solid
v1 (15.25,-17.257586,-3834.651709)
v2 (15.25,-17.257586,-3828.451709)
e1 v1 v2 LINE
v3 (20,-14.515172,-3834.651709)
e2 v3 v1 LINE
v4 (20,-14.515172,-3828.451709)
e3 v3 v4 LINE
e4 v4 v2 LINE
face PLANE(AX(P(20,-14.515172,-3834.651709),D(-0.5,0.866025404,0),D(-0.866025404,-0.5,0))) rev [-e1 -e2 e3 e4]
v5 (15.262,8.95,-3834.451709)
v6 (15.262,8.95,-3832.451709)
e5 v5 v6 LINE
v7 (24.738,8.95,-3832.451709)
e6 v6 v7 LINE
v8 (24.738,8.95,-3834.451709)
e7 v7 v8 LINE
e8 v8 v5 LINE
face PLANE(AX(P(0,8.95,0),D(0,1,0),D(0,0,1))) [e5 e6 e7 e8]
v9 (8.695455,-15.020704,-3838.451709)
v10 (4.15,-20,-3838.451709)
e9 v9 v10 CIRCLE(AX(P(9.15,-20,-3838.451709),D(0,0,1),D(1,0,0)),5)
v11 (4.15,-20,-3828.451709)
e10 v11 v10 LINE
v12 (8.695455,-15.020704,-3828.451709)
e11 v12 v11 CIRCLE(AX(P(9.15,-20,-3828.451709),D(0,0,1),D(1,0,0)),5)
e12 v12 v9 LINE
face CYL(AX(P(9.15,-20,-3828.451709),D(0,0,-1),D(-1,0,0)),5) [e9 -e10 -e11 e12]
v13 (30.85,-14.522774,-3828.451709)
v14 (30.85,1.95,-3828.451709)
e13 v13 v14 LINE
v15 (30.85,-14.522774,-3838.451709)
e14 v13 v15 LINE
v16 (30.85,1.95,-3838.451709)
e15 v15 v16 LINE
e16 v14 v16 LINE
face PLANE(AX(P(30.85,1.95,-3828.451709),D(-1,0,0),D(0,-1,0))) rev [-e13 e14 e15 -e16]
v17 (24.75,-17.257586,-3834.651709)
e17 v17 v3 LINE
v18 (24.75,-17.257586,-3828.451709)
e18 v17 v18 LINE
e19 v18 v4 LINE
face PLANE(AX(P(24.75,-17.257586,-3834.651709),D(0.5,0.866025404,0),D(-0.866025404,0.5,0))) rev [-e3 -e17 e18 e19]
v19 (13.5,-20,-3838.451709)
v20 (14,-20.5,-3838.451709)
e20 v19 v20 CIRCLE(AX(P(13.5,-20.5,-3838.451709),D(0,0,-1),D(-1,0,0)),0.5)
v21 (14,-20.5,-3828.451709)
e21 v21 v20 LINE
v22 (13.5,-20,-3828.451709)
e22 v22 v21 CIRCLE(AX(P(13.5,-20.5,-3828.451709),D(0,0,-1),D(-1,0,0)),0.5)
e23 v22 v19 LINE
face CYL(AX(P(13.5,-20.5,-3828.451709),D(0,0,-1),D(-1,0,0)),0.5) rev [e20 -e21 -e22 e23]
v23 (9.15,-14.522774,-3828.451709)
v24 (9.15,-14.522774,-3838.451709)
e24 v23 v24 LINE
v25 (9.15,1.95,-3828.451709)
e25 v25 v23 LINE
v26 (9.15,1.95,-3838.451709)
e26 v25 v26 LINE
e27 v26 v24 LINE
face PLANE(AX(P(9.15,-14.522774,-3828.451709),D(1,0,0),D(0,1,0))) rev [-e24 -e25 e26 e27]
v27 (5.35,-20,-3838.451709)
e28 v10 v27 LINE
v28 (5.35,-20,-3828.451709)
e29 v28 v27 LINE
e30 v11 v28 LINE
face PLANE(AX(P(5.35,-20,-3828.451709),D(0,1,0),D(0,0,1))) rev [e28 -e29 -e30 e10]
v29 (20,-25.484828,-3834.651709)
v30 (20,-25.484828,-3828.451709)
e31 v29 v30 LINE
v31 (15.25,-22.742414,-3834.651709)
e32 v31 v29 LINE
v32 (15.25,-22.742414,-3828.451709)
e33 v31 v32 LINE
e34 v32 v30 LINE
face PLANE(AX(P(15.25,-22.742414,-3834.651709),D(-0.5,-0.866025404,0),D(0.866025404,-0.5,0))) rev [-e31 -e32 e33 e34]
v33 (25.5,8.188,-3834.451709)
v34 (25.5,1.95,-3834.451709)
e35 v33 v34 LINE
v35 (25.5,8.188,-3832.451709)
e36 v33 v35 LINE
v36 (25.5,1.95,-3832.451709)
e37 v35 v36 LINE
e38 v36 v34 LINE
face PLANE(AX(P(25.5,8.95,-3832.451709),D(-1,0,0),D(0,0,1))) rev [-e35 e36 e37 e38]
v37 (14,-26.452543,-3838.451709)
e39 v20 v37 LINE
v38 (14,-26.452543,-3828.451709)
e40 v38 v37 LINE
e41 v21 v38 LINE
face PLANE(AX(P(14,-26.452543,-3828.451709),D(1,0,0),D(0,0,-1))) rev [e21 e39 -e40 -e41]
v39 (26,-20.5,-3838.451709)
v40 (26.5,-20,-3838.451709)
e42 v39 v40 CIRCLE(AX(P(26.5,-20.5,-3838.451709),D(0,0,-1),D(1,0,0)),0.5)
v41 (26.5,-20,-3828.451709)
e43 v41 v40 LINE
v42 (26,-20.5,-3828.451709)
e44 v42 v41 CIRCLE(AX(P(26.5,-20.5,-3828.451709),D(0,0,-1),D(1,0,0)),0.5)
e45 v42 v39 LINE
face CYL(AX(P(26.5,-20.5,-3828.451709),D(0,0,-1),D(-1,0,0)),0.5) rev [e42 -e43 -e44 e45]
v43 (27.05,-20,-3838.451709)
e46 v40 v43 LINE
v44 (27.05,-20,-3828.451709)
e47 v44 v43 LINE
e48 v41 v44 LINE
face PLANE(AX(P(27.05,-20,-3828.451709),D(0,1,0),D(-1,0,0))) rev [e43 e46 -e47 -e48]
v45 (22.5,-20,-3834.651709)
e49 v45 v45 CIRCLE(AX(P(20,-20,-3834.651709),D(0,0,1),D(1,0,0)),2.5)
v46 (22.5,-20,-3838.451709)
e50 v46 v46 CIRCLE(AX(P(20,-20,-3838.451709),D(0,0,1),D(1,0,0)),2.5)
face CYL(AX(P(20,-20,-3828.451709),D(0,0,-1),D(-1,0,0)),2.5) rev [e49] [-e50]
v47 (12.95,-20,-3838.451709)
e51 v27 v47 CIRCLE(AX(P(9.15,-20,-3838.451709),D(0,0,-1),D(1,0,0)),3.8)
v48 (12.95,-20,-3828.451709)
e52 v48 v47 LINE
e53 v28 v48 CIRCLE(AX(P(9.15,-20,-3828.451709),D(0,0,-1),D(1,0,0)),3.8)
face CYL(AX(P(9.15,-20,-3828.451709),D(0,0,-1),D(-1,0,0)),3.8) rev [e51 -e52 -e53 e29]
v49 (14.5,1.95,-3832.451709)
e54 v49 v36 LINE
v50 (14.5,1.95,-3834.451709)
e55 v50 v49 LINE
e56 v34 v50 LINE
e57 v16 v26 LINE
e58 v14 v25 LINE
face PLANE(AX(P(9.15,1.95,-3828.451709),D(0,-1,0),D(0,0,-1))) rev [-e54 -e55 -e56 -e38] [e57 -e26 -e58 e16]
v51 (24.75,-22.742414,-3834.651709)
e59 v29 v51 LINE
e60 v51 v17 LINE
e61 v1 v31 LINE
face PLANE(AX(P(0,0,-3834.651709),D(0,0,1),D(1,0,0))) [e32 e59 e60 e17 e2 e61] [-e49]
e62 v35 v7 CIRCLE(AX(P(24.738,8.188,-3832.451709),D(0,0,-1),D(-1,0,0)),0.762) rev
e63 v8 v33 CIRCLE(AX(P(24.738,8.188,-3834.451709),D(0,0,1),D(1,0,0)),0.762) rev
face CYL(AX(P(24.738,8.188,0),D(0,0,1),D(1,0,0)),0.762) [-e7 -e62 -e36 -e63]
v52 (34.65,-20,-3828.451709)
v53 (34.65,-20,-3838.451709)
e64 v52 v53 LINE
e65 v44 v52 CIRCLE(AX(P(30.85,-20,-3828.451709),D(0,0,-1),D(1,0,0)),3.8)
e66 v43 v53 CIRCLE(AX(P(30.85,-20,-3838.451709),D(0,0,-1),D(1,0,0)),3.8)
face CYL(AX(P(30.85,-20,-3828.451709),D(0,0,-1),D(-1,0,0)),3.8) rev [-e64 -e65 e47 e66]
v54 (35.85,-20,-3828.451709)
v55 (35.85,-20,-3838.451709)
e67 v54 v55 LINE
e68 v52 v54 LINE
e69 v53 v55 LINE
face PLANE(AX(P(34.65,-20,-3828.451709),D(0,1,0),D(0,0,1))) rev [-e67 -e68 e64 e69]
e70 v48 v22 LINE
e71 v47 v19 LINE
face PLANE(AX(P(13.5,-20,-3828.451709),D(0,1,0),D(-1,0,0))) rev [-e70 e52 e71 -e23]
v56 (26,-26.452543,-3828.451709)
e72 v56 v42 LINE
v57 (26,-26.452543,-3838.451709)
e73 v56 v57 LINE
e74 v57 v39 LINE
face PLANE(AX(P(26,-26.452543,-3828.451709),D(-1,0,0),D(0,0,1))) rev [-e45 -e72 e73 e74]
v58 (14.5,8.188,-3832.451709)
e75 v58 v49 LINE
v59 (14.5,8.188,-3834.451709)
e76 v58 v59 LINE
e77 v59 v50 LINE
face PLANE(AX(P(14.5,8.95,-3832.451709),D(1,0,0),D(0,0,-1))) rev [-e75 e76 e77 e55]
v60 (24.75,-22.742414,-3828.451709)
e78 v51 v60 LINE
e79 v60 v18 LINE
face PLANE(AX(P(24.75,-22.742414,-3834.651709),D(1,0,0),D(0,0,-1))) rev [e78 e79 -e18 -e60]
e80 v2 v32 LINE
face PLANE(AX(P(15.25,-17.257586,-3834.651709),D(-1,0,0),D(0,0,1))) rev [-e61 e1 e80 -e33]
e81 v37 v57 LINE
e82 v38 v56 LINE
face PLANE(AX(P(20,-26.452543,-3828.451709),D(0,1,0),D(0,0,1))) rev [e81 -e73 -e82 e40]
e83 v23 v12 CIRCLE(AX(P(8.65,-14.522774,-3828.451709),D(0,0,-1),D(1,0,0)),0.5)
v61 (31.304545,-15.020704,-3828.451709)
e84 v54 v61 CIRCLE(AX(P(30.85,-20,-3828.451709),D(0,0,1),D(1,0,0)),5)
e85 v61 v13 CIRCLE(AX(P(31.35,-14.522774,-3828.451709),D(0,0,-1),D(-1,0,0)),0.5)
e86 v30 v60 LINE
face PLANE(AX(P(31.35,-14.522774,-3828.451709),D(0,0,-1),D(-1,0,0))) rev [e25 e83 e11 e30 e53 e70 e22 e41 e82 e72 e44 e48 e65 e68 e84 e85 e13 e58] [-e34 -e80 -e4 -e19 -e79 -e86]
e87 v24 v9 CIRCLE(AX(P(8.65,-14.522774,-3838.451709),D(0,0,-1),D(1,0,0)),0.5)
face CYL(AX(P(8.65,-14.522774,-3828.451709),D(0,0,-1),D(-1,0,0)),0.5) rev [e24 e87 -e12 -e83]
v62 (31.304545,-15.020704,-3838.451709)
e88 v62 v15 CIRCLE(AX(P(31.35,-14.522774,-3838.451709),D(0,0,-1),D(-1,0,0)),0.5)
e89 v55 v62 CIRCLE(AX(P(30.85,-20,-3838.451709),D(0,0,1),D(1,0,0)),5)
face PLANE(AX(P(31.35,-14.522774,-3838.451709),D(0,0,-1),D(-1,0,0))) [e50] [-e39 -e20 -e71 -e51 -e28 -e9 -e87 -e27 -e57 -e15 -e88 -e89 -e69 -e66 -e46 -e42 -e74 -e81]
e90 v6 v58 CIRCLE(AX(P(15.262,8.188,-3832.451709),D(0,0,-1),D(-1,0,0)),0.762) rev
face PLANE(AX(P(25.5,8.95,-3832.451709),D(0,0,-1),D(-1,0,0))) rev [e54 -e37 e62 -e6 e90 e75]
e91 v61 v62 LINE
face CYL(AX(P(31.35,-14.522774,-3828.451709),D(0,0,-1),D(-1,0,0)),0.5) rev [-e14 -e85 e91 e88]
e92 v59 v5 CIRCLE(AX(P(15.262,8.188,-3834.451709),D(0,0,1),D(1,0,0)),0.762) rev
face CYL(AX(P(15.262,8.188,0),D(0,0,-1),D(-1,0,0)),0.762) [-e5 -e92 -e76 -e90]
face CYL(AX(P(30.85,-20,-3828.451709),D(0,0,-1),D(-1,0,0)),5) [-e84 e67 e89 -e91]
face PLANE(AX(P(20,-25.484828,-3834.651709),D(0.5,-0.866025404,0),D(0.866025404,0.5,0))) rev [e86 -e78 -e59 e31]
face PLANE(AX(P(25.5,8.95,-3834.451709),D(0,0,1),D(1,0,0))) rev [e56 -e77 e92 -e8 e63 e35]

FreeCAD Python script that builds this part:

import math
import FreeCAD as App
import Part
import Sketcher
from FreeCAD import Vector
Q = App.Units.Quantity


def edges_at(feature, points):
    """Names of the edges that pass closest to the given points."""
    edges = feature.Shape.Edges
    near = lambda p: min(range(len(edges)), key=lambda i: edges[i].distToShape(Part.Vertex(*p))[0])
    return sorted({f"Edge{near(p) + 1}" for p in points})

doc = App.newDocument("Part")
body = doc.addObject("PartDesign::Body", "Body")

# Sketch on XY plane
sketch1 = doc.addObject("Sketcher::SketchObject", "Sketch")
body.addObject(sketch1)
sketch1.AttachmentSupport = (doc.XY_Plane, [""])
sketch1.MapMode = "FlatFace"
sketch1.AttachmentOffset = App.Placement(Vector(0, 0, -3838.451709), App.Rotation())
sketch1.addGeometry(Part.LineSegment(Vector(12.95, -20, 0), Vector(13.5, -20, 0)), False)
sketch1.addGeometry(Part.ArcOfCircle(Part.Circle(Vector(13.5, -20.5, 0), Vector(0, 0, 1), 0.5), math.radians(0), math.radians(90)), False)
sketch1.addGeometry(Part.LineSegment(Vector(14, -20.5, 0), Vector(14, -26.452543, 0)), False)
sketch1.addGeometry(Part.LineSegment(Vector(14, -26.452543, 0), Vector(26, -26.452543, 0)), False)
sketch1.addGeometry(Part.LineSegment(Vector(26, -26.452543, 0), Vector(26, -20.5, 0)), False)
sketch1.addGeometry(Part.ArcOfCircle(Part.Circle(Vector(26.5, -20.5, 0), Vector(0, 0, 1), 0.5), math.radians(90), math.radians(180)), False)
sketch1.addGeometry(Part.LineSegment(Vector(26.5, -20, 0), Vector(27.05, -20, 0)), False)
sketch1.addGeometry(Part.ArcOfCircle(Part.Circle(Vector(30.85, -20, 0), Vector(0, 0, 1), 3.8), math.radians(0), math.radians(180)), False)
sketch1.addGeometry(Part.LineSegment(Vector(34.65, -20, 0), Vector(35.85, -20, 0)), False)
sketch1.addGeometry(Part.ArcOfCircle(Part.Circle(Vector(30.85, -20, 0), Vector(0, 0, 1), 5), math.radians(0), math.radians(84.784091)), False)
sketch1.addGeometry(Part.ArcOfCircle(Part.Circle(Vector(31.35, -14.522774, 0), Vector(0, 0, 1), 0.5), math.radians(180), math.radians(264.784091)), False)
sketch1.addGeometry(Part.LineSegment(Vector(30.85, -14.522774, 0), Vector(30.85, 1.95, 0)), False)
sketch1.addGeometry(Part.LineSegment(Vector(30.85, 1.95, 0), Vector(9.15, 1.95, 0)), False)
sketch1.addGeometry(Part.LineSegment(Vector(9.15, 1.95, 0), Vector(9.15, -14.522774, 0)), False)
sketch1.addGeometry(Part.ArcOfCircle(Part.Circle(Vector(8.65, -14.522774, 0), Vector(0, 0, 1), 0.5), math.radians(-84.784091), math.radians(0)), False)
sketch1.addGeometry(Part.ArcOfCircle(Part.Circle(Vector(9.15, -20, 0), Vector(0, 0, 1), 5), math.radians(95.215909), math.radians(180)), False)
sketch1.addGeometry(Part.LineSegment(Vector(4.15, -20, 0), Vector(5.35, -20, 0)), False)
sketch1.addGeometry(Part.ArcOfCircle(Part.Circle(Vector(9.15, -20, 0), Vector(0, 0, 1), 3.8), math.radians(0), math.radians(180)), False)
sketch1.addGeometry(Part.Circle(Vector(20, -20, 0), Vector(0, 0, 1), 2.5), False)
sketch1.addConstraint(Sketcher.Constraint("Tangent", 0, 2, 1, 2))
sketch1.addConstraint(Sketcher.Constraint("Tangent", 1, 1, 2, 1))
sketch1.addConstraint(Sketcher.Constraint("Coincident", 2, 2, 3, 1))
sketch1.addConstraint(Sketcher.Constraint("Coincident", 3, 2, 4, 1))
sketch1.addConstraint(Sketcher.Constraint("Tangent", 4, 2, 5, 2))
sketch1.addConstraint(Sketcher.Constraint("Tangent", 5, 1, 6, 1))
sketch1.addConstraint(Sketcher.Constraint("Coincident", 6, 2, 7, 2))
sketch1.addConstraint(Sketcher.Constraint("Coincident", 7, 1, 8, 1))
sketch1.addConstraint(Sketcher.Constraint("Coincident", 8, 2, 9, 1))
sketch1.addConstraint(Sketcher.Constraint("Tangent", 9, 2, 10, 2))
sketch1.addConstraint(Sketcher.Constraint("Tangent", 10, 1, 11, 1))
sketch1.addConstraint(Sketcher.Constraint("Coincident", 11, 2, 12, 1))
sketch1.addConstraint(Sketcher.Constraint("Coincident", 12, 2, 13, 1))
sketch1.addConstraint(Sketcher.Constraint("Tangent", 13, 2, 14, 2))
sketch1.addConstraint(Sketcher.Constraint("Tangent", 14, 1, 15, 1))
sketch1.addConstraint(Sketcher.Constraint("Coincident", 15, 2, 16, 1))
sketch1.addConstraint(Sketcher.Constraint("Coincident", 16, 2, 17, 2))
sketch1.addConstraint(Sketcher.Constraint("Coincident", 17, 1, 0, 1))
sketch1.addConstraint(Sketcher.Constraint("Horizontal", 0))
sketch1.addConstraint(Sketcher.Constraint("Vertical", 2))
sketch1.addConstraint(Sketcher.Constraint("Horizontal", 3))
sketch1.addConstraint(Sketcher.Constraint("Vertical", 4))
sketch1.addConstraint(Sketcher.Constraint("Horizontal", 6))
sketch1.addConstraint(Sketcher.Constraint("Horizontal", 8))
sketch1.addConstraint(Sketcher.Constraint("Vertical", 11))
sketch1.addConstraint(Sketcher.Constraint("Horizontal", 12))
sketch1.addConstraint(Sketcher.Constraint("Vertical", 13))
sketch1.addConstraint(Sketcher.Constraint("Horizontal", 16))
sketch1.addConstraint(Sketcher.Constraint("Coincident", 9, 3, 7, 3))
sketch1.addConstraint(Sketcher.Constraint("Coincident", 17, 3, 15, 3))
sketch1.addConstraint(Sketcher.Constraint("Equal", 1, 5))
sketch1.addConstraint(Sketcher.Constraint("Equal", 5, 10))
sketch1.addConstraint(Sketcher.Constraint("Equal", 10, 14))
sketch1.addConstraint(Sketcher.Constraint("Equal", 9, 15))
sketch1.addConstraint(Sketcher.Constraint("Equal", 7, 17))
sketch1.addConstraint(Sketcher.Constraint("Horizontal", 1, 3, 5, 3))
sketch1.addConstraint(Sketcher.Constraint("Horizontal", 10, 3, 14, 3))
sketch1.addConstraint(Sketcher.Constraint("Horizontal", 9, 3, 15, 3))
sketch1.addConstraint(Sketcher.Constraint("Horizontal", 17, 3, 18, 3))
sketch1.addConstraint(Sketcher.Constraint("Horizontal", 18, 3, 0, 2))
sketch1.addConstraint(Sketcher.Constraint("Horizontal", 6, 2, 7, 1))
sketch1.addConstraint(Sketcher.Constraint("Horizontal", 8, 2, 15, 2))
sketch1.addConstraint(Sketcher.Constraint("Vertical", 9, 3, 10, 1))
sketch1.addConstraint(Sketcher.Constraint("Equal", 0, 6))
sketch1.addConstraint(Sketcher.Constraint("Diameter", 18, 5.0))
sketch1.addConstraint(Sketcher.Constraint("Radius", 9, 5.0))
sketch1.addConstraint(Sketcher.Constraint("Radius", 1, 0.5))
sketch1.addConstraint(Sketcher.Constraint("Radius", 7, 3.8))
sketch1.addConstraint(Sketcher.Constraint("DistanceX", 3, 1, 3, 2, 12.0))
sketch1.addConstraint(Sketcher.Constraint("DistanceX", 12, 2, 12, 1, 21.7))
sketch1.addConstraint(Sketcher.Constraint("DistanceY", 7, 3, -1, 1, 20.0))
sketch1.addConstraint(Sketcher.Constraint("DistanceX", -1, 1, 18, 3, 20.0))
sketch1.addConstraint(Sketcher.Constraint("DistanceX", -1, 1, 1, 1, 14.0))
sketch1.addConstraint(Sketcher.Constraint("DistanceY", -1, 1, 11, 2, 1.95))
sketch1.addConstraint(Sketcher.Constraint("DistanceY", 2, 2, 2, 1, 5.952543))
pad1 = doc.addObject("PartDesign::Pad", "Pad")
body.addObject(pad1)
pad1.Profile = sketch1
pad1.Length = 10

# Sketch on XY plane
sketch2 = doc.addObject("Sketcher::SketchObject", "Sketch001")
body.addObject(sketch2)
sketch2.AttachmentSupport = (doc.XY_Plane, [""])
sketch2.MapMode = "FlatFace"
sketch2.AttachmentOffset = App.Placement(Vector(0, 0, -3828.451709), App.Rotation())
sketch2.addGeometry(Part.LineSegment(Vector(20, -25.484828, 0), Vector(24.75, -22.742414, 0)), False)
sketch2.addGeometry(Part.LineSegment(Vector(24.75, -22.742414, 0), Vector(24.75, -17.257586, 0)), False)
sketch2.addGeometry(Part.LineSegment(Vector(24.75, -17.257586, 0), Vector(20, -14.515172, 0)), False)
sketch2.addGeometry(Part.LineSegment(Vector(20, -14.515172, 0), Vector(15.25, -17.257586, 0)), False)
sketch2.addGeometry(Part.LineSegment(Vector(15.25, -17.257586, 0), Vector(15.25, -22.742414, 0)), False)
sketch2.addGeometry(Part.LineSegment(Vector(15.25, -22.742414, 0), Vector(20, -25.484828, 0)), False)
sketch2.addConstraint(Sketcher.Constraint("Coincident", 0, 2, 1, 1))
sketch2.addConstraint(Sketcher.Constraint("Coincident", 1, 2, 2, 1))
sketch2.addConstraint(Sketcher.Constraint("Coincident", 2, 2, 3, 1))
sketch2.addConstraint(Sketcher.Constraint("Coincident", 3, 2, 4, 1))
sketch2.addConstraint(Sketcher.Constraint("Coincident", 4, 2, 5, 1))
sketch2.addConstraint(Sketcher.Constraint("Coincident", 5, 2, 0, 1))
sketch2.addConstraint(Sketcher.Constraint("Vertical", 1))
sketch2.addConstraint(Sketcher.Constraint("Vertical", 4))
sketch2.addConstraint(Sketcher.Constraint("Parallel", 0, 3))
sketch2.addConstraint(Sketcher.Constraint("Parallel", 2, 5))
sketch2.addConstraint(Sketcher.Constraint("Horizontal", 1, 2, 3, 2))
sketch2.addConstraint(Sketcher.Constraint("Horizontal", 0, 2, 4, 2))
sketch2.addConstraint(Sketcher.Constraint("Vertical", 2, 2, 5, 2))
sketch2.addConstraint(Sketcher.Constraint("Angle", 0, Q("30 deg")))
sketch2.addConstraint(Sketcher.Constraint("DistanceX", -1, 1, 2, 2, 20.0))
sketch2.addConstraint(Sketcher.Constraint("DistanceX", 3, 2, 1, 2, 9.5))
sketch2.addConstraint(Sketcher.Constraint("DistanceY", 1, 1, 1, 2, 5.484828))
sketch2.addConstraint(Sketcher.Constraint("DistanceY", 0, 2, -1, 1, 22.742414))
pocket1 = doc.addObject("PartDesign::Pocket", "Pocket")
body.addObject(pocket1)
pocket1.Profile = sketch2
pocket1.Length = 6.2

# Sketch on XZ plane
sketch3 = doc.addObject("Sketcher::SketchObject", "Sketch002")
body.addObject(sketch3)
sketch3.AttachmentSupport = (doc.XZ_Plane, [""])
sketch3.MapMode = "FlatFace"
sketch3.AttachmentOffset = App.Placement(Vector(0, 0, -1.95), App.Rotation())
sketch3.addGeometry(Part.LineSegment(Vector(14.5, -3834.451709, 0), Vector(14.5, -3832.451709, 0)), False)
sketch3.addGeometry(Part.LineSegment(Vector(14.5, -3832.451709, 0), Vector(25.5, -3832.451709, 0)), False)
sketch3.addGeometry(Part.LineSegment(Vector(25.5, -3832.451709, 0), Vector(25.5, -3834.451709, 0)), False)
sketch3.addGeometry(Part.LineSegment(Vector(25.5, -3834.451709, 0), Vector(14.5, -3834.451709, 0)), False)
sketch3.addConstraint(Sketcher.Constraint("Coincident", 0, 2, 1, 1))
sketch3.addConstraint(Sketcher.Constraint("Coincident", 1, 2, 2, 1))
sketch3.addConstraint(Sketcher.Constraint("Coincident", 2, 2, 3, 1))
sketch3.addConstraint(Sketcher.Constraint("Coincident", 3, 2, 0, 1))
sketch3.addConstraint(Sketcher.Constraint("Vertical", 0))
sketch3.addConstraint(Sketcher.Constraint("Horizontal", 1))
sketch3.addConstraint(Sketcher.Constraint("Vertical", 2))
sketch3.addConstraint(Sketcher.Constraint("Horizontal", 3))
sketch3.addConstraint(Sketcher.Constraint("DistanceX", 1, 1, 1, 2, 11.0))
sketch3.addConstraint(Sketcher.Constraint("DistanceY", 0, 1, 0, 2, 2.0))
sketch3.addConstraint(Sketcher.Constraint("DistanceX", -1, 1, 0, 2, 14.5))
sketch3.addConstraint(Sketcher.Constraint("DistanceY", 0, 2, -1, 1, 3832.451709))
pad2 = doc.addObject("PartDesign::Pad", "Pad001")
body.addObject(pad2)
pad2.Profile = sketch3
pad2.Length = 7
pad2.Reversed = True
doc.recompute()

fillet = doc.addObject("PartDesign::Fillet", "Fillet")
body.addObject(fillet)
fillet.Base = (pad2, edges_at(pad2, [(25.5, 8.95, -3833.452), (14.5, 8.95, -3833.452)]))
fillet.Radius = 0.762

doc.recompute()
